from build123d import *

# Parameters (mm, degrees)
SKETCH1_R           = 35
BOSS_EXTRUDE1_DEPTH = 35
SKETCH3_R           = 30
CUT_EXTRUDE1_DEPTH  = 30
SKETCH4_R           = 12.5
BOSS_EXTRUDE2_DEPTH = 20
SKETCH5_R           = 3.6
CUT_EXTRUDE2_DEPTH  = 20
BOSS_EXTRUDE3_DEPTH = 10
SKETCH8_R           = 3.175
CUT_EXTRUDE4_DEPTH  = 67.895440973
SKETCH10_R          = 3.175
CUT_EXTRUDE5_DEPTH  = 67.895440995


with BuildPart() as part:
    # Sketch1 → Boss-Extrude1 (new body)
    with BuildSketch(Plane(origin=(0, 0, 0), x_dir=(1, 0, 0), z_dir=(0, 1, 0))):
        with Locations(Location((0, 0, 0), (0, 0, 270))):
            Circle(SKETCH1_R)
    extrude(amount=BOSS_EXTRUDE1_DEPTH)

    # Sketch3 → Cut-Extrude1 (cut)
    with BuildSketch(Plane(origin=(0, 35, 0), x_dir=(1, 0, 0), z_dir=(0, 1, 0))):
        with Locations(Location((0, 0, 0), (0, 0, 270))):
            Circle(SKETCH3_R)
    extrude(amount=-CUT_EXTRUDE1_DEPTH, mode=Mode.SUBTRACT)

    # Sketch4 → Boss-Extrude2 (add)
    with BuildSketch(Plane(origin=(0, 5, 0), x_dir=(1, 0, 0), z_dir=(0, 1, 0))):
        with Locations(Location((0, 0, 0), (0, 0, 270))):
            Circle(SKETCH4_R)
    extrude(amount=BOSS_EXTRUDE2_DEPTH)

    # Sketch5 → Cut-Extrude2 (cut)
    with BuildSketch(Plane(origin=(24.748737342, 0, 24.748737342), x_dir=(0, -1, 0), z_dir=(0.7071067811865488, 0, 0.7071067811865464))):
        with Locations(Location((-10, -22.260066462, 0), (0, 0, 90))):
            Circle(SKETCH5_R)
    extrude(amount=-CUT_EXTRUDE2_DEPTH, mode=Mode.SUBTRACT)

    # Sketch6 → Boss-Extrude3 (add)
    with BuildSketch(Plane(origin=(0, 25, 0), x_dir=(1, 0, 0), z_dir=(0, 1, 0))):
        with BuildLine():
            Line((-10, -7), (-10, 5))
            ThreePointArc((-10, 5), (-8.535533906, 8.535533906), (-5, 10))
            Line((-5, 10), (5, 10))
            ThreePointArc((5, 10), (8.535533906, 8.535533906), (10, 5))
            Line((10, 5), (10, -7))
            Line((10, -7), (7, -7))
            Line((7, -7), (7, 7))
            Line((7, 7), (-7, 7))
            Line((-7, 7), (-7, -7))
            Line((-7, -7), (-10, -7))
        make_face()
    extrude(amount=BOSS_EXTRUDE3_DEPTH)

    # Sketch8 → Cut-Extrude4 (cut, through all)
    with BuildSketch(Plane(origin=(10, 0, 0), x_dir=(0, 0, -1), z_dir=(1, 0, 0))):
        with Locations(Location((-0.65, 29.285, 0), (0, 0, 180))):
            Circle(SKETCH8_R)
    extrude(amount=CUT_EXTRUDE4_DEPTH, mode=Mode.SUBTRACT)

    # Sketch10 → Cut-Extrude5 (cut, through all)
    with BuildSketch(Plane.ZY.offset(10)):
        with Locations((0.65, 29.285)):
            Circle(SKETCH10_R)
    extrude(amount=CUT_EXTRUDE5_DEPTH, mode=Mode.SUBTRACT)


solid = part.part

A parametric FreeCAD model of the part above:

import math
import FreeCAD as App
import Part
import Sketcher

V = App.Vector
Q = App.Units.Quantity

doc = App.newDocument("Part")
params = doc.addObject("Spreadsheet::Sheet", "Params")
for row, (alias, value) in enumerate([
    ("sketch1_diameter", "70 mm"),
    ("pad1_length", "35 mm"),
    ("sketch2_diameter", "60 mm"),
    ("pocket1_length", "30 mm"),
    ("sketch3_diameter", "25 mm"),
    ("pad2_length", "20 mm"),
    ("sketch4_diameter", "7.2 mm"),
    ("pocket2_length", "20 mm"),
    ("sketch5_radius", "5 mm"),
    ("sketch5_width", "3 mm"),
    ("sketch5_width2", "14 mm"),
    ("sketch5_height", "12 mm"),
    ("pad3_length", "10 mm"),
    ("sketch6_diameter", "6.35 mm"),
    ("sketch7_diameter", "6.35 mm"),
], start=1):
    params.set(f"A{row}", alias)
    params.set(f"B{row}", "=" + value)
    params.setAlias(f"B{row}", alias)

body = doc.addObject("PartDesign::Body", "Body")

# Sketch on XZ plane
sketch1 = body.newObject("Sketcher::SketchObject", "Sketch")
sketch1.AttachmentSupport = (doc.getObject("XZ_Plane"), [""])
sketch1.MapMode = "FlatFace"
sketch1.addGeometry(Part.Circle(V(0, 0, 0), V(0, 0, 1), 35), False)
sketch1.addConstraint([
    Sketcher.Constraint("Coincident", 0, 3, -1, 1),
    Sketcher.Constraint("Diameter", 0, Q("70 mm")),
])
sketch1.setExpression("Constraints[1]", "Params.sketch1_diameter")
pad1 = body.newObject("PartDesign::Pad", "Pad")
pad1.Profile = sketch1
pad1.setExpression("Length", "Params.pad1_length")
pad1.Reversed = True

# Sketch on XZ plane
sketch2 = body.newObject("Sketcher::SketchObject", "Sketch001")
sketch2.AttachmentSupport = (doc.getObject("XZ_Plane"), [""])
sketch2.MapMode = "FlatFace"
sketch2.AttachmentOffset = App.Placement(V(0, 0, -35), App.Rotation())
sketch2.addGeometry(Part.Circle(V(0, 0, 0), V(0, 0, 1), 30), False)
sketch2.addConstraint([
    Sketcher.Constraint("Coincident", 0, 3, -1, 1),
    Sketcher.Constraint("Diameter", 0, Q("60 mm")),
])
sketch2.setExpression("Constraints[1]", "Params.sketch2_diameter")
pocket1 = body.newObject("PartDesign::Pocket", "Pocket")
pocket1.Profile = sketch2
pocket1.setExpression("Length", "Params.pocket1_length")
pocket1.Reversed = True

# Sketch on XZ plane
sketch3 = body.newObject("Sketcher::SketchObject", "Sketch002")
sketch3.AttachmentSupport = (doc.getObject("XZ_Plane"), [""])
sketch3.MapMode = "FlatFace"
sketch3.AttachmentOffset = App.Placement(V(0, 0, -5), App.Rotation())
sketch3.addGeometry(Part.Circle(V(0, 0, 0), V(0, 0, 1), 12), False)
sketch3.addConstraint([
    Sketcher.Constraint("Coincident", 0, 3, -1, 1),
    Sketcher.Constraint("Diameter", 0, Q("25 mm")),
])
sketch3.setExpression("Constraints[1]", "Params.sketch3_diameter")
pad2 = body.newObject("PartDesign::Pad", "Pad001")
pad2.Profile = sketch3
pad2.setExpression("Length", "Params.pad2_length")
pad2.Reversed = True

# Sketch on an angled plane
sketch4 = body.newObject("Sketcher::SketchObject", "Sketch003")
sketch4.Placement = App.Placement(V(24.748737, 0, 24.748737), App.Rotation(V(0, -1, 0), V(0.707106781, 0, -0.707106781), V(0.707106781, 0, 0.707106781), "ZXY"))
sketch4.addGeometry(Part.Circle(V(-10, -22.3, 0), V(0, 0, 1), 3.6), False)
sketch4.addConstraint([
    Sketcher.Constraint("Diameter", 0, Q("7.2 mm")),
    Sketcher.Constraint("DistanceX", 0, 3, -1, 1, Q("10 mm")),
    Sketcher.Constraint("DistanceY", 0, 3, -1, 1, Q("22.260066 mm")),
])
sketch4.setExpression("Constraints[0]", "Params.sketch4_diameter")
pocket2 = body.newObject("PartDesign::Pocket", "Pocket001")
pocket2.Profile = sketch4
pocket2.setExpression("Length", "Params.pocket2_length")

# Sketch on XZ plane
sketch5 = body.newObject("Sketcher::SketchObject", "Sketch004")
sketch5.AttachmentSupport = (doc.getObject("XZ_Plane"), [""])
sketch5.MapMode = "FlatFace"
sketch5.AttachmentOffset = App.Placement(V(0, 0, -25), App.Rotation())
sketch5.addGeometry([
    Part.LineSegment(V(-10, -5, 0), V(-10, 7, 0)),  # 0
    Part.LineSegment(V(-10, 7, 0), V(-7, 7, 0)),  # 1
    Part.LineSegment(V(-7, 7, 0), V(-7, -7, 0)),  # 2
    Part.LineSegment(V(-7, -7, 0), V(7, -7, 0)),  # 3
    Part.LineSegment(V(7, -7, 0), V(7, 7, 0)),  # 4
    Part.LineSegment(V(7, 7, 0), V(10, 7, 0)),  # 5
    Part.LineSegment(V(10, 7, 0), V(10, -5, 0)),  # 6
    Part.ArcOfCircle(Part.Circle(V(5, -5, 0), V(0, 0, 1), 5), math.radians(-90), math.radians(0)),  # 7
    Part.LineSegment(V(5, -10, 0), V(-5, -10, 0)),  # 8
    Part.ArcOfCircle(Part.Circle(V(-5, -5, 0), V(0, 0, 1), 5), math.radians(180), math.radians(270)),  # 9
], False)
sketch5.addConstraint([
    Sketcher.Constraint("Coincident", 0, 2, 1, 1),
    Sketcher.Constraint("Coincident", 1, 2, 2, 1),
    Sketcher.Constraint("Coincident", 2, 2, 3, 1),
    Sketcher.Constraint("Coincident", 3, 2, 4, 1),
    Sketcher.Constraint("Coincident", 4, 2, 5, 1),
    Sketcher.Constraint("Coincident", 5, 2, 6, 1),
    Sketcher.Constraint("Tangent", 6, 2, 7, 2),
    Sketcher.Constraint("Tangent", 7, 1, 8, 1),
    Sketcher.Constraint("Tangent", 8, 2, 9, 2),
    Sketcher.Constraint("Tangent", 9, 1, 0, 1),
    Sketcher.Constraint("Vertical", 0),
    Sketcher.Constraint("Horizontal", 1),
    Sketcher.Constraint("Vertical", 2),
    Sketcher.Constraint("Horizontal", 3),
    Sketcher.Constraint("Vertical", 4),
    Sketcher.Constraint("Horizontal", 5),
    Sketcher.Constraint("Vertical", 6),
    Sketcher.Constraint("Horizontal", 8),
    Sketcher.Constraint("Equal", 7, 9),
    Sketcher.Constraint("Symmetric", 1, 2, 3, 2, -1, 1),
    Sketcher.Constraint("Symmetric", 0, 2, 5, 2, -2),
    Sketcher.Constraint("Equal", 3, 2),
    Sketcher.Constraint("Radius", 7, Q("5 mm")),
    Sketcher.Constraint("DistanceX", 1, 1, 1, 2, Q("3 mm")),
    Sketcher.Constraint("DistanceX", 3, 1, 3, 2, Q("14 mm")),
    Sketcher.Constraint("DistanceY", 0, 1, 0, 2, Q("12 mm")),
])
sketch5.setExpression("Constraints[22]", "Params.sketch5_radius")
sketch5.setExpression("Constraints[23]", "Params.sketch5_width")
sketch5.setExpression("Constraints[24]", "Params.sketch5_width2")
sketch5.setExpression("Constraints[25]", "Params.sketch5_height")
pad3 = body.newObject("PartDesign::Pad", "Pad002")
pad3.Profile = sketch5
pad3.setExpression("Length", "Params.pad3_length")
pad3.Reversed = True

# Sketch on YZ plane
sketch6 = body.newObject("Sketcher::SketchObject", "Sketch005")
sketch6.AttachmentSupport = (doc.getObject("YZ_Plane"), [""])
sketch6.MapMode = "FlatFace"
sketch6.AttachmentOffset = App.Placement(V(0, 0, 10), App.Rotation())
sketch6.addGeometry(Part.Circle(V(29.3, 0.7, 0), V(0, 0, 1), 3.2), False)
sketch6.addConstraint([
    Sketcher.Constraint("Diameter", 0, Q("6.35 mm")),
    Sketcher.Constraint("DistanceY", -1, 1, 0, 3, Q("0.65 mm")),
    Sketcher.Constraint("DistanceX", -1, 1, 0, 3, Q("29.285 mm")),
])
sketch6.setExpression("Constraints[0]", "Params.sketch6_diameter")
pocket3 = body.newObject("PartDesign::Pocket", "Pocket002")
pocket3.Profile = sketch6
pocket3.Type = "ThroughAll"
pocket3.Reversed = True

# Sketch on YZ plane
sketch7 = body.newObject("Sketcher::SketchObject", "Sketch006")
sketch7.AttachmentSupport = (doc.getObject("YZ_Plane"), [""])
sketch7.MapMode = "FlatFace"
sketch7.AttachmentOffset = App.Placement(V(0, 0, -10), App.Rotation())
sketch7.addGeometry(Part.Circle(V(29.3, 0.7, 0), V(0, 0, 1), 3.2), False)
sketch7.addConstraint([
    Sketcher.Constraint("Diameter", 0, Q("6.35 mm")),
    Sketcher.Constraint("DistanceY", -1, 1, 0, 3, Q("0.65 mm")),
    Sketcher.Constraint("DistanceX", -1, 1, 0, 3, Q("29.285 mm")),
])
sketch7.setExpression("Constraints[0]", "Params.sketch7_diameter")
pocket4 = body.newObject("PartDesign::Pocket", "Pocket003")
pocket4.Profile = sketch7
pocket4.Type = "ThroughAll"

doc.recompute()
